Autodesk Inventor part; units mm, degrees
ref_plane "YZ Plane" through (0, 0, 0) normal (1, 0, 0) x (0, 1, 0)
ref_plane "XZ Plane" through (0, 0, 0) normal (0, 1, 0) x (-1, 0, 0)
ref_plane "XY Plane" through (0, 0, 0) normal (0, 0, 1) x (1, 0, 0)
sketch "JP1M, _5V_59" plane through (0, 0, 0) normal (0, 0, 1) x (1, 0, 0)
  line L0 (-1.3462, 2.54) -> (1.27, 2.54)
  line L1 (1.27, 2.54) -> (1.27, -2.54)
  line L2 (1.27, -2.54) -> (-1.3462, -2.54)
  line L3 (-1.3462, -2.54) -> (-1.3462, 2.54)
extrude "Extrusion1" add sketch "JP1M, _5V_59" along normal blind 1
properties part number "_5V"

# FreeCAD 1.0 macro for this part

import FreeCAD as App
import Part
import Sketcher
Q = App.Units.Quantity

doc = App.newDocument("Part")
body = doc.addObject("PartDesign::Body", "Body")

# Sketch on XY plane
sketch1 = doc.addObject("Sketcher::SketchObject", "Sketch")
body.addObject(sketch1)
sketch1.AttachmentSupport = (doc.XY_Plane, [""])
sketch1.MapMode = "FlatFace"
sketch1.addGeometry(Part.LineSegment(App.Vector(1.3, 2.5, 0), App.Vector(-1.3, 2.5, 0)), False)
sketch1.addGeometry(Part.LineSegment(App.Vector(-1.3, 2.5, 0), App.Vector(-1.3, -2.5, 0)), False)
sketch1.addGeometry(Part.LineSegment(App.Vector(-1.3, -2.5, 0), App.Vector(1.3, -2.5, 0)), False)
sketch1.addGeometry(Part.LineSegment(App.Vector(1.3, -2.5, 0), App.Vector(1.3, 2.5, 0)), False)
sketch1.addConstraint(Sketcher.Constraint("Coincident", 0, 2, 1, 1))
sketch1.addConstraint(Sketcher.Constraint("Coincident", 1, 2, 2, 1))
sketch1.addConstraint(Sketcher.Constraint("Coincident", 2, 2, 3, 1))
sketch1.addConstraint(Sketcher.Constraint("Coincident", 3, 2, 0, 1))
sketch1.addConstraint(Sketcher.Constraint("Horizontal", 0))
sketch1.addConstraint(Sketcher.Constraint("Vertical", 1))
sketch1.addConstraint(Sketcher.Constraint("Horizontal", 2))
sketch1.addConstraint(Sketcher.Constraint("Vertical", 3))
sketch1.addConstraint(Sketcher.Constraint("DistanceY", 1, 2, 1, 1, Q("0.2 in")))
sketch1.addConstraint(Sketcher.Constraint("DistanceY", -1, 1, 0, 2, Q("0.1 in")))
sketch1.addConstraint(Sketcher.Constraint("DistanceX", 0, 2, 0, 1, Q("0.103 in")))
sketch1.addConstraint(Sketcher.Constraint("DistanceX", -1, 1, 2, 2, Q("0.05 in")))
pad1 = doc.addObject("PartDesign::Pad", "Pad")
body.addObject(pad1)
pad1.Profile = sketch1
pad1.Length = 1

doc.recompute()
